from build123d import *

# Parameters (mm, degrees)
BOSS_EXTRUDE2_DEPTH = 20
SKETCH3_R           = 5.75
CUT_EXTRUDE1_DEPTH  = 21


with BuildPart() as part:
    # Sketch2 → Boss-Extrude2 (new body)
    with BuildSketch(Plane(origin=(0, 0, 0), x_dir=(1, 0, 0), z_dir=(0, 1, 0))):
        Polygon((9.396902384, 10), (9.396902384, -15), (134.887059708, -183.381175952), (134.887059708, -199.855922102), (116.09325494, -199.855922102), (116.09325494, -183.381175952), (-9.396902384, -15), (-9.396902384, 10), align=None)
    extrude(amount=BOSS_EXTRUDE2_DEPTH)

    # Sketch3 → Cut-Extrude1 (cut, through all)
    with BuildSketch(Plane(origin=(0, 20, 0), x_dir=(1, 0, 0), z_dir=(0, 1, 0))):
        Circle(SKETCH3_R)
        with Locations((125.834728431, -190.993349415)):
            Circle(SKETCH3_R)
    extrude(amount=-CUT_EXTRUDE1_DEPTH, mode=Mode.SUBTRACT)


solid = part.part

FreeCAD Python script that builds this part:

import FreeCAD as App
import Part
import Sketcher

V = App.Vector
Q = App.Units.Quantity

doc = App.newDocument("Part")
body = doc.addObject("PartDesign::Body", "Body")

# Sketch on XZ plane
sketch1 = body.newObject("Sketcher::SketchObject", "Sketch")
sketch1.AttachmentSupport = (doc.getObject("XZ_Plane"), [""])
sketch1.MapMode = "FlatFace"
sketch1.addGeometry(Part.LineSegment(V(9, 15, 0), V(9, -10, 0)), False)
sketch1.addGeometry(Part.LineSegment(V(9, -10, 0), V(-9, -10, 0)), False)
sketch1.addGeometry(Part.LineSegment(V(-9, -10, 0), V(-9, 15, 0)), False)
sketch1.addGeometry(Part.LineSegment(V(-9, 15, 0), V(116, 183, 0)), False)
sketch1.addGeometry(Part.LineSegment(V(116, 183, 0), V(116, 200, 0)), False)
sketch1.addGeometry(Part.LineSegment(V(116, 200, 0), V(135, 200, 0)), False)
sketch1.addGeometry(Part.LineSegment(V(135, 200, 0), V(135, 183, 0)), False)
sketch1.addGeometry(Part.LineSegment(V(135, 183, 0), V(9, 15, 0)), False)
sketch1.addConstraint(Sketcher.Constraint("Coincident", 0, 2, 1, 1))
sketch1.addConstraint(Sketcher.Constraint("Coincident", 1, 2, 2, 1))
sketch1.addConstraint(Sketcher.Constraint("Coincident", 2, 2, 3, 1))
sketch1.addConstraint(Sketcher.Constraint("Coincident", 3, 2, 4, 1))
sketch1.addConstraint(Sketcher.Constraint("Coincident", 4, 2, 5, 1))
sketch1.addConstraint(Sketcher.Constraint("Coincident", 5, 2, 6, 1))
sketch1.addConstraint(Sketcher.Constraint("Coincident", 6, 2, 7, 1))
sketch1.addConstraint(Sketcher.Constraint("Coincident", 7, 2, 0, 1))
sketch1.addConstraint(Sketcher.Constraint("Vertical", 0))
sketch1.addConstraint(Sketcher.Constraint("Horizontal", 1))
sketch1.addConstraint(Sketcher.Constraint("Vertical", 2))
sketch1.addConstraint(Sketcher.Constraint("Vertical", 4))
sketch1.addConstraint(Sketcher.Constraint("Horizontal", 5))
sketch1.addConstraint(Sketcher.Constraint("Vertical", 6))
sketch1.addConstraint(Sketcher.Constraint("Symmetric", 2, 2, 7, 2, -2))
sketch1.addConstraint(Sketcher.Constraint("Parallel", 3, 7))
sketch1.addConstraint(Sketcher.Constraint("Horizontal", 3, 2, 6, 2))
sketch1.addConstraint(Sketcher.Constraint("DistanceY", 0, 2, 0, 1, Q("25 mm")))
sketch1.addConstraint(Sketcher.Constraint("Distance", 3, Q("210 mm")))
sketch1.addConstraint(Sketcher.Constraint("DistanceY", 0, 2, -1, 1, Q("10 mm")))
sketch1.addConstraint(Sketcher.Constraint("DistanceX", 1, 2, 1, 1, Q("18.793805 mm")))
sketch1.addConstraint(Sketcher.Constraint("DistanceY", 4, 1, 4, 2, Q("16.474746 mm")))
sketch1.addConstraint(Sketcher.Constraint("DistanceX", -1, 1, 5, 2, Q("134.88706 mm")))
pad1 = body.newObject("PartDesign::Pad", "Pad")
pad1.Profile = sketch1
pad1.Length = 20
pad1.Reversed = True

# Sketch on XZ plane
sketch2 = body.newObject("Sketcher::SketchObject", "Sketch001")
sketch2.AttachmentSupport = (doc.getObject("XZ_Plane"), [""])
sketch2.MapMode = "FlatFace"
sketch2.AttachmentOffset = App.Placement(V(0, 0, -20), App.Rotation())
sketch2.addGeometry(Part.Circle(V(0, 0, 0), V(0, 0, 1), 6), False)
sketch2.addGeometry(Part.Circle(V(126, 191, 0), V(0, 0, 1), 6), False)
sketch2.addConstraint(Sketcher.Constraint("Coincident", 0, 3, -1, 1))
sketch2.addConstraint(Sketcher.Constraint("Equal", 0, 1))
sketch2.addConstraint(Sketcher.Constraint("Diameter", 0, Q("11.5 mm")))
sketch2.addConstraint(Sketcher.Constraint("DistanceX", -1, 1, 1, 3, Q("125.834728 mm")))
sketch2.addConstraint(Sketcher.Constraint("DistanceY", -1, 1, 1, 3, Q("190.993349 mm")))
pocket1 = body.newObject("PartDesign::Pocket", "Pocket")
pocket1.Profile = sketch2
pocket1.Type = "ThroughAll"
pocket1.Reversed = True

doc.recompute()
